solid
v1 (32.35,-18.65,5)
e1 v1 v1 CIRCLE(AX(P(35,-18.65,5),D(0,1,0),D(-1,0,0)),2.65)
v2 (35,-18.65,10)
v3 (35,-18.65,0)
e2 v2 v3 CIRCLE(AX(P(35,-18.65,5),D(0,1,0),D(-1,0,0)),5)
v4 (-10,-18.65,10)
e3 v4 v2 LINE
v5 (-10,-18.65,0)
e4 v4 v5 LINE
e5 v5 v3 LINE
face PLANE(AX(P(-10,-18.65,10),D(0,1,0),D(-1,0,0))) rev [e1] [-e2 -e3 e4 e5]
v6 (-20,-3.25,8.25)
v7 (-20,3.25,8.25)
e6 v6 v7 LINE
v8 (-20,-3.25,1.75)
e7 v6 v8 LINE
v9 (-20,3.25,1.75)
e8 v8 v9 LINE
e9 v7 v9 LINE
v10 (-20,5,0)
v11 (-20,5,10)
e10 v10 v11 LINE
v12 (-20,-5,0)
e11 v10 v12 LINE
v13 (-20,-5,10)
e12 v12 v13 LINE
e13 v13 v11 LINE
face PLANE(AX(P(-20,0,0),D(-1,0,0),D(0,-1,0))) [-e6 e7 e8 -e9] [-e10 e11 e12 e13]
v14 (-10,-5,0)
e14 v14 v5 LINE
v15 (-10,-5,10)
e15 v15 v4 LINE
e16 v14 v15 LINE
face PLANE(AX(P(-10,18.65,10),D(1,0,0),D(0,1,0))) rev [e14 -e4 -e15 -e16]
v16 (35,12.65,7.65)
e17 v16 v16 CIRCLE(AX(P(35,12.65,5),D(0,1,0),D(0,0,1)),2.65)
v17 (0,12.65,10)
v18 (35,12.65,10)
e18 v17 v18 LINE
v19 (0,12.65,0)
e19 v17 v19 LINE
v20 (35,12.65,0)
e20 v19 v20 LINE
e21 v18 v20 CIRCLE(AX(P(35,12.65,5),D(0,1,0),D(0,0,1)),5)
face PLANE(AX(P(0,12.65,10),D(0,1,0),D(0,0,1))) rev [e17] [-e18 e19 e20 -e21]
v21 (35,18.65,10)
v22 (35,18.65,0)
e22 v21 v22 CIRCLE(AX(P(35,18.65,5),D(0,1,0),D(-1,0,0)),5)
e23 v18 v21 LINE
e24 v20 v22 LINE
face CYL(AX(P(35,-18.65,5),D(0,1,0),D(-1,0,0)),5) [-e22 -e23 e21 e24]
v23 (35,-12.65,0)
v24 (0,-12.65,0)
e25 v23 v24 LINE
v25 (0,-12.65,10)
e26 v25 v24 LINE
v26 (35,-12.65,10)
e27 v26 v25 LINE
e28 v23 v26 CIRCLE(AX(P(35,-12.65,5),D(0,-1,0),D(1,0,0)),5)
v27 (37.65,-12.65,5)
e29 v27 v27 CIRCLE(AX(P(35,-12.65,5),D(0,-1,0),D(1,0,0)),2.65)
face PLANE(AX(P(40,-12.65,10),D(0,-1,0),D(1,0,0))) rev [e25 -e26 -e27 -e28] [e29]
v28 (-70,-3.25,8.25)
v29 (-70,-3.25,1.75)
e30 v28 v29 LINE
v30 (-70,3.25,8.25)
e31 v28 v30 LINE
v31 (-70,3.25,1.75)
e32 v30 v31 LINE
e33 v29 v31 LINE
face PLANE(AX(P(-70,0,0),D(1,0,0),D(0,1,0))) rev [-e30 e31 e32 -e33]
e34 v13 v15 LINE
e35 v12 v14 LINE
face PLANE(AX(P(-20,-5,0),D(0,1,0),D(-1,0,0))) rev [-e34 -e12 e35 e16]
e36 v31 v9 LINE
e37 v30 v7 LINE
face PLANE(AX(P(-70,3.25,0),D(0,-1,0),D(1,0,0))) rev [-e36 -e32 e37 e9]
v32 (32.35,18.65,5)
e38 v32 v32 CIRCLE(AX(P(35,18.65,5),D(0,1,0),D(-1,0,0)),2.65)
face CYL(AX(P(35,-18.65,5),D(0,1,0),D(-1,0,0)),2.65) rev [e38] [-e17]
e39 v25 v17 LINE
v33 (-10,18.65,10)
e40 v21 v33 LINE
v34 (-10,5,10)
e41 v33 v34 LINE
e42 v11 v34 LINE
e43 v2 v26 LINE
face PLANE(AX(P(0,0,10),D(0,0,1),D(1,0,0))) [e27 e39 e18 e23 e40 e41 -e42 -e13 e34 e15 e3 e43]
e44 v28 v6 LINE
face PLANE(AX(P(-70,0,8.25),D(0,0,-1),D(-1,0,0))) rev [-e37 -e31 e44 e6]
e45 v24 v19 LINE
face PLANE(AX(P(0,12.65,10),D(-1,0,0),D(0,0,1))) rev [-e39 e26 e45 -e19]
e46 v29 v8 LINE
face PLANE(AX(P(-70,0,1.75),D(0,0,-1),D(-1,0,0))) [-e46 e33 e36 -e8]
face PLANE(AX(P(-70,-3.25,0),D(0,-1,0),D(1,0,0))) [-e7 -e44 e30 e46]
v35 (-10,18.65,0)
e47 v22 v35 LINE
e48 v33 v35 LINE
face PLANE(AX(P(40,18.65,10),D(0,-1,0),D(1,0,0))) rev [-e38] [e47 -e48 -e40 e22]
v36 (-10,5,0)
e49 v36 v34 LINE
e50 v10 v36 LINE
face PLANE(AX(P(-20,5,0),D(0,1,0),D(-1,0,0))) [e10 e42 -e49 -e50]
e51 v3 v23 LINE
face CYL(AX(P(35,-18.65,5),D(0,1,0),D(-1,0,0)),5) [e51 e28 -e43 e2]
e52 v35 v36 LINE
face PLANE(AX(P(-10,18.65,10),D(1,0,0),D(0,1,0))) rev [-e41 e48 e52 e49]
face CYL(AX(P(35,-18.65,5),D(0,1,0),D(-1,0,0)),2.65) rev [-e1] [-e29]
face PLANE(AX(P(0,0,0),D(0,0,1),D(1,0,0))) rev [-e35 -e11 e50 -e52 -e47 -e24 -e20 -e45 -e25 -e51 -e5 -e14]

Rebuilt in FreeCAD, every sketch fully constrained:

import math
import FreeCAD as App
import Part
import Sketcher

V = App.Vector
Q = App.Units.Quantity

doc = App.newDocument("Part")
body = doc.addObject("PartDesign::Body", "Body")

# Sketch on XY plane
sketch1 = body.newObject("Sketcher::SketchObject", "Sketch")
sketch1.AttachmentSupport = (doc.getObject("XY_Plane"), [""])
sketch1.MapMode = "FlatFace"
sketch1.addGeometry(Part.LineSegment(V(0, -13, 0), V(0, 13, 0)), False)
sketch1.addGeometry(Part.LineSegment(V(0, 13, 0), V(40, 13, 0)), False)
sketch1.addGeometry(Part.LineSegment(V(40, 13, 0), V(40, 19, 0)), False)
sketch1.addGeometry(Part.LineSegment(V(40, 19, 0), V(-10, 19, 0)), False)
sketch1.addGeometry(Part.LineSegment(V(-10, 19, 0), V(-10, -19, 0)), False)
sketch1.addGeometry(Part.LineSegment(V(-10, -19, 0), V(40, -19, 0)), False)
sketch1.addGeometry(Part.LineSegment(V(40, -19, 0), V(40, -13, 0)), False)
sketch1.addGeometry(Part.LineSegment(V(40, -13, 0), V(0, -13, 0)), False)
sketch1.addConstraint(Sketcher.Constraint("Coincident", 0, 2, 1, 1))
sketch1.addConstraint(Sketcher.Constraint("Coincident", 1, 2, 2, 1))
sketch1.addConstraint(Sketcher.Constraint("Coincident", 2, 2, 3, 1))
sketch1.addConstraint(Sketcher.Constraint("Coincident", 3, 2, 4, 1))
sketch1.addConstraint(Sketcher.Constraint("Coincident", 4, 2, 5, 1))
sketch1.addConstraint(Sketcher.Constraint("Coincident", 5, 2, 6, 1))
sketch1.addConstraint(Sketcher.Constraint("Coincident", 6, 2, 7, 1))
sketch1.addConstraint(Sketcher.Constraint("Coincident", 7, 2, 0, 1))
sketch1.addConstraint(Sketcher.Constraint("Vertical", 0))
sketch1.addConstraint(Sketcher.Constraint("Horizontal", 1))
sketch1.addConstraint(Sketcher.Constraint("Vertical", 2))
sketch1.addConstraint(Sketcher.Constraint("Horizontal", 3))
sketch1.addConstraint(Sketcher.Constraint("Vertical", 4))
sketch1.addConstraint(Sketcher.Constraint("Horizontal", 5))
sketch1.addConstraint(Sketcher.Constraint("Vertical", 6))
sketch1.addConstraint(Sketcher.Constraint("Horizontal", 7))
sketch1.addConstraint(Sketcher.Constraint("Symmetric", 0, 2, 7, 2, -1, 1))
sketch1.addConstraint(Sketcher.Constraint("Symmetric", 2, 2, 5, 2, -1))
sketch1.addConstraint(Sketcher.Constraint("DistanceX", 1, 1, 1, 2, Q("40 mm")))
sketch1.addConstraint(Sketcher.Constraint("DistanceX", 3, 2, 3, 1, Q("50 mm")))
sketch1.addConstraint(Sketcher.Constraint("DistanceY", 2, 1, 2, 2, Q("6 mm")))
sketch1.addConstraint(Sketcher.Constraint("DistanceY", 0, 1, 0, 2, Q("25.3 mm")))
pad1 = body.newObject("PartDesign::Pad", "Pad")
pad1.Profile = sketch1
pad1.Length = 10

# Sketch on YZ plane
sketch2 = body.newObject("Sketcher::SketchObject", "Sketch001")
sketch2.AttachmentSupport = (doc.getObject("YZ_Plane"), [""])
sketch2.MapMode = "FlatFace"
sketch2.AttachmentOffset = App.Placement(V(0, 0, -10), App.Rotation())
sketch2.addGeometry(Part.LineSegment(V(5, 0, 0), V(-5, 0, 0)), False)
sketch2.addGeometry(Part.LineSegment(V(-5, 0, 0), V(-5, 10, 0)), False)
sketch2.addGeometry(Part.LineSegment(V(-5, 10, 0), V(5, 10, 0)), False)
sketch2.addGeometry(Part.LineSegment(V(5, 10, 0), V(5, 0, 0)), False)
sketch2.addConstraint(Sketcher.Constraint("Coincident", 0, 2, 1, 1))
sketch2.addConstraint(Sketcher.Constraint("Coincident", 1, 2, 2, 1))
sketch2.addConstraint(Sketcher.Constraint("Coincident", 2, 2, 3, 1))
sketch2.addConstraint(Sketcher.Constraint("Coincident", 3, 2, 0, 1))
sketch2.addConstraint(Sketcher.Constraint("Horizontal", 0))
sketch2.addConstraint(Sketcher.Constraint("Vertical", 1))
sketch2.addConstraint(Sketcher.Constraint("Horizontal", 2))
sketch2.addConstraint(Sketcher.Constraint("Vertical", 3))
sketch2.addConstraint(Sketcher.Constraint("Symmetric", 0, 2, 3, 2, -1, 1))
sketch2.addConstraint(Sketcher.Constraint("Equal", 2, 1))
sketch2.addConstraint(Sketcher.Constraint("DistanceX", 0, 2, 0, 1, Q("10 mm")))
pad2 = body.newObject("PartDesign::Pad", "Pad001")
pad2.Profile = sketch2
pad2.Length = 10
pad2.Reversed = True

# Sketch on YZ plane
sketch3 = body.newObject("Sketcher::SketchObject", "Sketch002")
sketch3.AttachmentSupport = (doc.getObject("YZ_Plane"), [""])
sketch3.MapMode = "FlatFace"
sketch3.AttachmentOffset = App.Placement(V(0, 0, -20), App.Rotation())
sketch3.addGeometry(Part.LineSegment(V(3, 2, 0), V(-3, 2, 0)), False)
sketch3.addGeometry(Part.LineSegment(V(-3, 2, 0), V(-3, 8, 0)), False)
sketch3.addGeometry(Part.LineSegment(V(-3, 8, 0), V(3, 8, 0)), False)
sketch3.addGeometry(Part.LineSegment(V(3, 8, 0), V(3, 2, 0)), False)
sketch3.addConstraint(Sketcher.Constraint("Coincident", 0, 2, 1, 1))
sketch3.addConstraint(Sketcher.Constraint("Coincident", 1, 2, 2, 1))
sketch3.addConstraint(Sketcher.Constraint("Coincident", 2, 2, 3, 1))
sketch3.addConstraint(Sketcher.Constraint("Coincident", 3, 2, 0, 1))
sketch3.addConstraint(Sketcher.Constraint("Horizontal", 0))
sketch3.addConstraint(Sketcher.Constraint("Vertical", 1))
sketch3.addConstraint(Sketcher.Constraint("Horizontal", 2))
sketch3.addConstraint(Sketcher.Constraint("Vertical", 3))
sketch3.addConstraint(Sketcher.Constraint("Equal", 2, 1))
sketch3.addConstraint(Sketcher.Constraint("DistanceX", 0, 2, 0, 1, Q("6.5 mm")))
sketch3.addConstraint(Sketcher.Constraint("DistanceX", 0, 2, -1, 1, Q("3.25 mm")))
sketch3.addConstraint(Sketcher.Constraint("DistanceY", -1, 1, 0, 2, Q("1.75 mm")))
pad3 = body.newObject("PartDesign::Pad", "Pad002")
pad3.Profile = sketch3
pad3.Length = 50
pad3.Reversed = True

# Sketch on XZ plane
sketch4 = body.newObject("Sketcher::SketchObject", "Sketch003")
sketch4.AttachmentSupport = (doc.getObject("XZ_Plane"), [""])
sketch4.MapMode = "FlatFace"
sketch4.AttachmentOffset = App.Placement(V(0, 0, -18.65), App.Rotation())
sketch4.addGeometry(Part.Circle(V(35, 5, 0), V(0, 0, 1), 2.6), False)
sketch4.addGeometry(Part.ArcOfCircle(Part.Circle(V(35, 5, 0), V(0, 0, 1), 5), math.radians(-90), math.radians(0)), False)
sketch4.addGeometry(Part.LineSegment(V(40, 5, 0), V(40, 0, 0)), False)
sketch4.addGeometry(Part.LineSegment(V(40, 0, 0), V(35, 0, 0)), False)
sketch4.addGeometry(Part.LineSegment(V(40, 10, 0), V(40, 5, 0)), False)
sketch4.addGeometry(Part.ArcOfCircle(Part.Circle(V(35, 5, 0), V(0, 0, 1), 5), math.radians(0), math.radians(90)), False)
sketch4.addGeometry(Part.LineSegment(V(35, 10, 0), V(40, 10, 0)), False)
sketch4.addConstraint(Sketcher.Constraint("Tangent", 1, 2, 2, 1))
sketch4.addConstraint(Sketcher.Constraint("Coincident", 2, 2, 3, 1))
sketch4.addConstraint(Sketcher.Constraint("Tangent", 3, 2, 1, 1))
sketch4.addConstraint(Sketcher.Constraint("Tangent", 4, 2, 5, 1))
sketch4.addConstraint(Sketcher.Constraint("Tangent", 5, 2, 6, 1))
sketch4.addConstraint(Sketcher.Constraint("Coincident", 6, 2, 4, 1))
sketch4.addConstraint(Sketcher.Constraint("Vertical", 2))
sketch4.addConstraint(Sketcher.Constraint("Horizontal", 3))
sketch4.addConstraint(Sketcher.Constraint("Vertical", 4))
sketch4.addConstraint(Sketcher.Constraint("Horizontal", 6))
sketch4.addConstraint(Sketcher.Constraint("Coincident", 1, 3, 0, 3))
sketch4.addConstraint(Sketcher.Constraint("Coincident", 5, 3, 0, 3))
sketch4.addConstraint(Sketcher.Constraint("Equal", 1, 5))
sketch4.addConstraint(Sketcher.Constraint("PointOnObject", 2, 2, -1))
sketch4.addConstraint(Sketcher.Constraint("Radius", 1, Q("5 mm")))
sketch4.addConstraint(Sketcher.Constraint("Diameter", 0, Q("5.3 mm")))
sketch4.addConstraint(Sketcher.Constraint("DistanceX", -1, 1, 0, 3, Q("35 mm")))
pocket1 = body.newObject("PartDesign::Pocket", "Pocket")
pocket1.Profile = sketch4
pocket1.Type = "ThroughAll"
pocket1.Reversed = True

doc.recompute()
